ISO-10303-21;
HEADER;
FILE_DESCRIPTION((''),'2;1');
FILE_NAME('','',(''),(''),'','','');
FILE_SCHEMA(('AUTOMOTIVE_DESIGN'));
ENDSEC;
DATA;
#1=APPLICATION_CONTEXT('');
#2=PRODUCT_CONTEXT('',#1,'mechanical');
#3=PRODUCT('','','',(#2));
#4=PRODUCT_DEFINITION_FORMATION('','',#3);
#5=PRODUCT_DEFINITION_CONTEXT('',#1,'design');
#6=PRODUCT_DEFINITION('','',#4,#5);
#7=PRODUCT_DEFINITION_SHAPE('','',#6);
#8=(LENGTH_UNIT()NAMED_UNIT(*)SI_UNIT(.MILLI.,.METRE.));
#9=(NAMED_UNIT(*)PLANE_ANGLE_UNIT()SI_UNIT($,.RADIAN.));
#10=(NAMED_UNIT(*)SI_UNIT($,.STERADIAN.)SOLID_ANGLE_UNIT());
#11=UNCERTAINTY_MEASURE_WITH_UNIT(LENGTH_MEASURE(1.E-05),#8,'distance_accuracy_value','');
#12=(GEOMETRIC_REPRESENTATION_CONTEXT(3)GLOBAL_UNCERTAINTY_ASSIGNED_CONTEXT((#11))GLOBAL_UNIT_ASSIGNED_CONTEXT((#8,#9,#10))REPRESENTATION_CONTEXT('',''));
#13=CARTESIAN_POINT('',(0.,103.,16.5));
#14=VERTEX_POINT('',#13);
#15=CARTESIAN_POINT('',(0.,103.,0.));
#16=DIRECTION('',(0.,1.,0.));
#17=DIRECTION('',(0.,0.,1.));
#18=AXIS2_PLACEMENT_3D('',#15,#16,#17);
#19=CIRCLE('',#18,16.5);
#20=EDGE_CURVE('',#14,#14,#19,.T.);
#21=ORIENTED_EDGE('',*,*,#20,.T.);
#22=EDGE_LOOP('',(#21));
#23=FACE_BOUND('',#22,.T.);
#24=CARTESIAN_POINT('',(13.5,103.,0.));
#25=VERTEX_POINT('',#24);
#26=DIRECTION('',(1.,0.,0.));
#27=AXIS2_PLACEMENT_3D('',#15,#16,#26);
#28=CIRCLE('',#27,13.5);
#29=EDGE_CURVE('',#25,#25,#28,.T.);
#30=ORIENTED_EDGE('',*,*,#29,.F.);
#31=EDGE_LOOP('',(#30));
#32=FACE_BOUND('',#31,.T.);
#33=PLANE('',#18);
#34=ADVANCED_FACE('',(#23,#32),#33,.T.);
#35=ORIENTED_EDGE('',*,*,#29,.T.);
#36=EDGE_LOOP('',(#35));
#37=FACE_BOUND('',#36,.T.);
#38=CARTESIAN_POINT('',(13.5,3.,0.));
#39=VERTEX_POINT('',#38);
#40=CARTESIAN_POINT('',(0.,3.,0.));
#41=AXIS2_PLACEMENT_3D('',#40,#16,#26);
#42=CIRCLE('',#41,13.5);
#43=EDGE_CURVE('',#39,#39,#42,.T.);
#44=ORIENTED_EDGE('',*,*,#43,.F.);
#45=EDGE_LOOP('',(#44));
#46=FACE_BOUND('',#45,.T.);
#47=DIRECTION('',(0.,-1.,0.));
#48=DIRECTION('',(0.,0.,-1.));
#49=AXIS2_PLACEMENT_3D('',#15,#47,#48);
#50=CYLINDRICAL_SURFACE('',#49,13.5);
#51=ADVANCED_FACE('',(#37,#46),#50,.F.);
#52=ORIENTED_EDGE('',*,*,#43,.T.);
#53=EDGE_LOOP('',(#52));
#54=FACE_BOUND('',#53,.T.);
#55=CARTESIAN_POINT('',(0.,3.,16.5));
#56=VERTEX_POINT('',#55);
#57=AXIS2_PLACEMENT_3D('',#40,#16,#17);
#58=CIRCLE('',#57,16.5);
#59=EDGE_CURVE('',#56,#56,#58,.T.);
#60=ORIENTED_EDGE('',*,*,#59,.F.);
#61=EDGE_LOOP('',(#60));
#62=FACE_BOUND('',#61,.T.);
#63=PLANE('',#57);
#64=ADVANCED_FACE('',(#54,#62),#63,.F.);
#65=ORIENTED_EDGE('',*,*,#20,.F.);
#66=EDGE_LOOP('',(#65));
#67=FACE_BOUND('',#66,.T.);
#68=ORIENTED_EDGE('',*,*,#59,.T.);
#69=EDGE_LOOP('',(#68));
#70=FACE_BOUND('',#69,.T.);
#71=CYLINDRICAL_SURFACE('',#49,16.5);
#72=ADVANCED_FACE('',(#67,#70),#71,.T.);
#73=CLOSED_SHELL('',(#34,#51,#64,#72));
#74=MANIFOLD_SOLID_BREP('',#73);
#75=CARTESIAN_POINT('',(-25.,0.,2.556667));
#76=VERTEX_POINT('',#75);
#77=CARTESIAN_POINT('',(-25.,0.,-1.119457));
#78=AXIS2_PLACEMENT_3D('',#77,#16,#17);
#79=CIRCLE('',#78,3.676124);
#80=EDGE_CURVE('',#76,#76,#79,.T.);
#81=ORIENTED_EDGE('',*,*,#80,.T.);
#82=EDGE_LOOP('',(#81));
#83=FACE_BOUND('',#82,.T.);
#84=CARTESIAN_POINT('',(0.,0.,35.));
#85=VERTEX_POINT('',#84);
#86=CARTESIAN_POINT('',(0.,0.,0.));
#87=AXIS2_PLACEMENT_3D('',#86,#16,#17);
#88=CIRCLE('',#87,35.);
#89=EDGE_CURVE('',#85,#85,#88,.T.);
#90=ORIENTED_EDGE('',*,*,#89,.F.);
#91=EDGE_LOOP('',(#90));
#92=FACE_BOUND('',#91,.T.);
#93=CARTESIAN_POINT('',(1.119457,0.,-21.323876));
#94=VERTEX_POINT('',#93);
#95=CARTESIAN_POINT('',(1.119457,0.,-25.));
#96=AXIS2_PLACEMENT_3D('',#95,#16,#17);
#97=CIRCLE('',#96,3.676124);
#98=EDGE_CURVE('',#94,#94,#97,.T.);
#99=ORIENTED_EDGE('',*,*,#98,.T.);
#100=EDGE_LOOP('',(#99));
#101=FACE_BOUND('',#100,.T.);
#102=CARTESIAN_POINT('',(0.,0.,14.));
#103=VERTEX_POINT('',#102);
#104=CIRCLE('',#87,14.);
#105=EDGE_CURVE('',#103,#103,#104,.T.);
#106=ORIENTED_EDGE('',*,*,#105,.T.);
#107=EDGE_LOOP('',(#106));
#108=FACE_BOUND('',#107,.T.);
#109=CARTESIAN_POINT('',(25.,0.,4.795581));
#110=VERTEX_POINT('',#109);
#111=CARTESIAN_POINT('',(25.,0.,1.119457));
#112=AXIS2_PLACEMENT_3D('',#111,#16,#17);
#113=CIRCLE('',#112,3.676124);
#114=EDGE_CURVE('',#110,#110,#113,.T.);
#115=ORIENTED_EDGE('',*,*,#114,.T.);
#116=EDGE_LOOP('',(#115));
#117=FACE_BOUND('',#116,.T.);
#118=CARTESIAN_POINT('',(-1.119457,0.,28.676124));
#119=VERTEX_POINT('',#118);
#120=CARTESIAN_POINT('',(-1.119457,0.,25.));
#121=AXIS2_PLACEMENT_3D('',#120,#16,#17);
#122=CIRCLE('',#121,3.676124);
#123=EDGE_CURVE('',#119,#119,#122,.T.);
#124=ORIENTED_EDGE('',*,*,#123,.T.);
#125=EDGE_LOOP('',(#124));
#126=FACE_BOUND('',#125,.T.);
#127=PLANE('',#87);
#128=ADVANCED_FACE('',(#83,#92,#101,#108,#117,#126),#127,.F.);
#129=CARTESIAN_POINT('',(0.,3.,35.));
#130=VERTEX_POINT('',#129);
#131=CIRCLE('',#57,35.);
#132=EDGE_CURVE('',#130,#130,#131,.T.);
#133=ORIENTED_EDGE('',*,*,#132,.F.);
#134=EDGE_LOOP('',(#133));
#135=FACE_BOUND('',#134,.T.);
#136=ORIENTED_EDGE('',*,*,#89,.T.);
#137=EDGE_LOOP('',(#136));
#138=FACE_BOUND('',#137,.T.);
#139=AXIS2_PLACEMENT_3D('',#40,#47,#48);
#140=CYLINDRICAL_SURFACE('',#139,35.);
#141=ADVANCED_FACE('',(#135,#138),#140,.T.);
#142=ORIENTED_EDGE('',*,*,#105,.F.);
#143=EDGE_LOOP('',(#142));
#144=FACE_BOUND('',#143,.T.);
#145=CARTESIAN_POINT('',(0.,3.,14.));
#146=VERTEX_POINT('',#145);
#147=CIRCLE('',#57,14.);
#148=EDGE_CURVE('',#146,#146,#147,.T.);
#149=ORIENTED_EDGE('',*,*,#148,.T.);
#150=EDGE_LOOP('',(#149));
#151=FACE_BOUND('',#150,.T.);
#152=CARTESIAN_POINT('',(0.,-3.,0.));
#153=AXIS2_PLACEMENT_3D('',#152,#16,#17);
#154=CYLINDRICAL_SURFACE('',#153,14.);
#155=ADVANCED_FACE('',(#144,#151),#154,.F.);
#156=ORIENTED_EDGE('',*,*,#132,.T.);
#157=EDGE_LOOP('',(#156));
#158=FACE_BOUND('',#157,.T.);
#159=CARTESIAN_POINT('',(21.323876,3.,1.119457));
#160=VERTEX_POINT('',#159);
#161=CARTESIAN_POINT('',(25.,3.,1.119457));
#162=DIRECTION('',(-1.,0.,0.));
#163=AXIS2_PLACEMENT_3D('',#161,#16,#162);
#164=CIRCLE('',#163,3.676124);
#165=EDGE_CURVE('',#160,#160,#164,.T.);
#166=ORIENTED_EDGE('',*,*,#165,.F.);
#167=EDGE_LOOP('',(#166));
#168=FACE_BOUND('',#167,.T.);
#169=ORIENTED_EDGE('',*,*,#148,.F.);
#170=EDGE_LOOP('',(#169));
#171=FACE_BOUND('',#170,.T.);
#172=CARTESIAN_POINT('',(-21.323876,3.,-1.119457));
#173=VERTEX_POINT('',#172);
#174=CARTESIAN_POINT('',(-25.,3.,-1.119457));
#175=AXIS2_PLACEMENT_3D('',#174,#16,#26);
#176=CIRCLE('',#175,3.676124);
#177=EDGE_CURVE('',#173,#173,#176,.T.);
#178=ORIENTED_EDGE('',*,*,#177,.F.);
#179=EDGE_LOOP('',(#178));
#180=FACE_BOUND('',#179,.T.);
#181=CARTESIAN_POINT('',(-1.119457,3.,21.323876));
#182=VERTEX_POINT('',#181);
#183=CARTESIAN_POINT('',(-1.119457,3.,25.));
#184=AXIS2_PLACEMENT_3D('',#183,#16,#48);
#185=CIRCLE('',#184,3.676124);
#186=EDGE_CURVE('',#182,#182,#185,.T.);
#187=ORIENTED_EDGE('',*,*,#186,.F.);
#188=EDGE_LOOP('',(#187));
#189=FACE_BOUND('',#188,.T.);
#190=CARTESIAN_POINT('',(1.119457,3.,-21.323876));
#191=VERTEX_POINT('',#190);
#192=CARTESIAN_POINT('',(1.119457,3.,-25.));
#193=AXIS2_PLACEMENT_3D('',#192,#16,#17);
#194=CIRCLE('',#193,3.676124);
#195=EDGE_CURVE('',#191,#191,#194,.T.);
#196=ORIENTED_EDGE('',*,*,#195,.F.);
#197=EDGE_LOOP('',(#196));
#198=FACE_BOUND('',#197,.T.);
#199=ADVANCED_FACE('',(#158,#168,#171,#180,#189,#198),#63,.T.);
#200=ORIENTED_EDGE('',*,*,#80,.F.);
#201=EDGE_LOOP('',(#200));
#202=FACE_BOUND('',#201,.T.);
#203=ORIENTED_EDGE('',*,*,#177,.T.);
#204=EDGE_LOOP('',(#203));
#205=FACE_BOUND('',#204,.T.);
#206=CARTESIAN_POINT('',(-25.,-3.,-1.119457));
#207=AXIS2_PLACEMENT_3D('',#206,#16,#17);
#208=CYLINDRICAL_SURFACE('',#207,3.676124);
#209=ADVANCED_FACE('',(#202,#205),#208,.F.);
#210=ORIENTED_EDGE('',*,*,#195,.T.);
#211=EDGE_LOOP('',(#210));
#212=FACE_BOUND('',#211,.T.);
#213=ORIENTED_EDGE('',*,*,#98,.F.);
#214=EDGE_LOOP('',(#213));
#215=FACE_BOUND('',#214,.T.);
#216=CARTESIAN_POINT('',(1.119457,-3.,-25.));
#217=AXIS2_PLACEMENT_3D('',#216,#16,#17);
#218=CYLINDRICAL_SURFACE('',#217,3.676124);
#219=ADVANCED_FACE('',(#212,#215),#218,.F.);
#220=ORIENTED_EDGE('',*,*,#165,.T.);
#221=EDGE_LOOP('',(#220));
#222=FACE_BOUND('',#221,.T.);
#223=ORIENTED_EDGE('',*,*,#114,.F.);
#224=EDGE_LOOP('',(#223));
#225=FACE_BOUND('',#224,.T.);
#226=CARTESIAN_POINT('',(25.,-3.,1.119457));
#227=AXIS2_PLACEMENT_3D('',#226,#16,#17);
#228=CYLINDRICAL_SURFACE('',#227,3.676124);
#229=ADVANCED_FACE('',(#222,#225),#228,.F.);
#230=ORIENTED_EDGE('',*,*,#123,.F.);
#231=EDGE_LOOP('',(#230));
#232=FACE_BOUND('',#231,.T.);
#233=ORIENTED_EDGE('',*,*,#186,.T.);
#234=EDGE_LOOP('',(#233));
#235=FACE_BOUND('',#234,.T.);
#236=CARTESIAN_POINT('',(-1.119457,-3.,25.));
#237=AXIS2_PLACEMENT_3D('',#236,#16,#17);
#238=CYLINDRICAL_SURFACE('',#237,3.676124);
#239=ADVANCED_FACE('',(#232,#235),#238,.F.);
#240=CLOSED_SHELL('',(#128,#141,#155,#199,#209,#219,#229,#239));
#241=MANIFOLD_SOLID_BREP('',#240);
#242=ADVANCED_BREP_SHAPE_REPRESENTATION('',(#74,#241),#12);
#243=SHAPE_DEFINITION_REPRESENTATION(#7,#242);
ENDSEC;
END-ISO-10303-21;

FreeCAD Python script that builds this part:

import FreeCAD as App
import Part
import Sketcher

V = App.Vector

doc = App.newDocument("Part")
body = doc.addObject("PartDesign::Body", "Body")

sketch1 = doc.addObject("Sketcher::SketchObject", "Sketch")
body.addObject(sketch1)
sketch1.AttachmentSupport = (doc.XZ_Plane, [""])
sketch1.MapMode = "FlatFace"
sketch1.addGeometry(Part.Circle(V(0, 0, 0), V(0, 0, 1), 35), False)
sketch1.addConstraint([
    Sketcher.Constraint("Coincident", 0, 3, -1, 1),
    Sketcher.Constraint("Diameter", 0, 70.0),
])
pad1 = doc.addObject("PartDesign::Pad", "Pad")
body.addObject(pad1)
pad1.Profile = sketch1
pad1.Length = 3
pad1.Reversed = True

sketch2 = doc.addObject("Sketcher::SketchObject", "Sketch001")
body.addObject(sketch2)
sketch2.AttachmentSupport = (doc.XZ_Plane, [""])
sketch2.MapMode = "FlatFace"
sketch2.AttachmentOffset = App.Placement(V(0, 0, -3), App.Rotation())
sketch2.addGeometry(Part.Circle(V(0, 0, 0), V(0, 0, 1), 14), False)
sketch2.addConstraint([
    Sketcher.Constraint("Coincident", 0, 3, -1, 1),
    Sketcher.Constraint("Diameter", 0, 28.0),
])
pocket1 = doc.addObject("PartDesign::Pocket", "Pocket")
body.addObject(pocket1)
pocket1.Profile = sketch2
pocket1.Length = 6
pocket1.Reversed = True

sketch3 = doc.addObject("Sketcher::SketchObject", "Sketch002")
body.addObject(sketch3)
sketch3.AttachmentSupport = (doc.XZ_Plane, [""])
sketch3.MapMode = "FlatFace"
sketch3.AttachmentOffset = App.Placement(V(0, 0, -3), App.Rotation())
sketch3.addGeometry(Part.Circle(V(1.1, -25, 0), V(0, 0, 1), 3.7), False)
sketch3.addConstraint([
    Sketcher.Constraint("DistanceY", 0, 3, -1, 1, 25.0),
    Sketcher.Constraint("Diameter", 0, 7.352248),
    Sketcher.Constraint("DistanceX", -1, 1, 0, 3, 1.119457),
])
pocket2 = doc.addObject("PartDesign::Pocket", "Pocket001")
body.addObject(pocket2)
pocket2.Profile = sketch3
pocket2.Length = 6
pocket2.Reversed = True
doc.recompute()

polarpattern = doc.addObject("PartDesign::PolarPattern", "PolarPattern")
body.addObject(polarpattern)
polarpattern.Originals = [pocket2]
polarpattern.Axis = (doc.Y_Axis, [""])
polarpattern.Angle = 360
polarpattern.Occurrences = 4
body.Tip = polarpattern
body2 = doc.addObject("PartDesign::Body", "Body001")

sketch4 = doc.addObject("Sketcher::SketchObject", "Sketch003")
body2.addObject(sketch4)
sketch4.AttachmentSupport = (doc.getObject("XZ_Plane001"), [""])
sketch4.MapMode = "FlatFace"
sketch4.AttachmentOffset = App.Placement(V(0, 0, -3), App.Rotation())
sketch4.addGeometry([
    Part.Circle(V(0, 0, 0), V(0, 0, 1), 16),
    Part.Circle(V(0, 0, 0), V(0, 0, 1), 14),
], False)
sketch4.addConstraint([
    Sketcher.Constraint("Coincident", 0, 3, -1, 1),
    Sketcher.Constraint("Coincident", 1, 3, -1, 1),
    Sketcher.Constraint("Diameter", 0, 33.0),
    Sketcher.Constraint("Diameter", 1, 27.0),
])
pad2 = doc.addObject("PartDesign::Pad", "Pad001")
body2.addObject(pad2)
pad2.Profile = sketch4
pad2.Length = 100
pad2.Reversed = True

doc.recompute()
